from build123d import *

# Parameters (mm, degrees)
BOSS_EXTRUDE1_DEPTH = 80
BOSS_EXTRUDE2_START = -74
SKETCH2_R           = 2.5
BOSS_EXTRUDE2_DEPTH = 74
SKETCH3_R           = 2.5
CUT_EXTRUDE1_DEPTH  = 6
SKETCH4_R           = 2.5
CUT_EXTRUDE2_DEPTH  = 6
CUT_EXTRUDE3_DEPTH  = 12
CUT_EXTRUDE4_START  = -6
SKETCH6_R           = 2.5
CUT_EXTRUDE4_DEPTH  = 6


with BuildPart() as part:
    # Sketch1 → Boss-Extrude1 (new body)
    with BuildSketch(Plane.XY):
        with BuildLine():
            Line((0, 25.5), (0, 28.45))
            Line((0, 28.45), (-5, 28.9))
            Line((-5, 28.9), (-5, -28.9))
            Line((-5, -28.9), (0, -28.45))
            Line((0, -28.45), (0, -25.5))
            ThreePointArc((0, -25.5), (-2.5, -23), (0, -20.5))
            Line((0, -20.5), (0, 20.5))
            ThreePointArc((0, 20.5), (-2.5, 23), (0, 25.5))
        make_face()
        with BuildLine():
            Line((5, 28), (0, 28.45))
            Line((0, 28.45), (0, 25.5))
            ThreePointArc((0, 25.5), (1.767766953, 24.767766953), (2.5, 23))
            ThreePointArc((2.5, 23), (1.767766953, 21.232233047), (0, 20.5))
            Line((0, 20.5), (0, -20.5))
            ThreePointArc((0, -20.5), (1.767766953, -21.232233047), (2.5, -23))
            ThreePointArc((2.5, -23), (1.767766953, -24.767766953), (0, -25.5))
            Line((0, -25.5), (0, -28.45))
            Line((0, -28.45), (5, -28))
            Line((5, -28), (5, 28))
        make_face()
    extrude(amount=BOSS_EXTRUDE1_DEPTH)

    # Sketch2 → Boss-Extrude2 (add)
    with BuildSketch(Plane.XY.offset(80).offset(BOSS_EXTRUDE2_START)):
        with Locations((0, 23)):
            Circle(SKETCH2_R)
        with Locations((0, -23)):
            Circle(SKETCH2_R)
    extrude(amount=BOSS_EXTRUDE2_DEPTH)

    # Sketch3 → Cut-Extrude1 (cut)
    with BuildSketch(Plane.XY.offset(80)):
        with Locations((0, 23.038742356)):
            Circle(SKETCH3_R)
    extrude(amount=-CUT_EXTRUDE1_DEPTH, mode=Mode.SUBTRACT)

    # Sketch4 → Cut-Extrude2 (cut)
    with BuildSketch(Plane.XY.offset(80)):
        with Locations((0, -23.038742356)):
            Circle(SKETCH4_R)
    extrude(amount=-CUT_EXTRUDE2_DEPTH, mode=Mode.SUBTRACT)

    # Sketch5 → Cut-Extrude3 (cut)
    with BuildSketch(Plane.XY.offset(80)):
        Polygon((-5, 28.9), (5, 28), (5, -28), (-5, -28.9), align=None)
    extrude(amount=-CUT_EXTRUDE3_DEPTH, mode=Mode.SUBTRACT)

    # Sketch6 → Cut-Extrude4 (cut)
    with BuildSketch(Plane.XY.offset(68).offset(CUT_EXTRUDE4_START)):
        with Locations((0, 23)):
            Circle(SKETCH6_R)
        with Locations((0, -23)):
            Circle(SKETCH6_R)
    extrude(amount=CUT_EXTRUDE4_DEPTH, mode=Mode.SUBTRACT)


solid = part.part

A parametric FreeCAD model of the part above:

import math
import FreeCAD as App
import Part
import Sketcher

V = App.Vector

doc = App.newDocument("Part")
params = doc.addObject("Spreadsheet::Sheet", "Params")
for row, (alias, value) in enumerate([
    ("sketch1_radius", "2.5 mm"),
    ("sketch1_height", "56 mm"),
    ("sketch1_height2", "57.8 mm"),
    ("pad1_length", "80 mm"),
    ("sketch2_diameter", "5 mm"),
    ("pad2_length", "74 mm"),
    ("sketch3_diameter", "5 mm"),
    ("pocket1_length", "6 mm"),
    ("sketch4_diameter", "5 mm"),
    ("pocket2_length", "6 mm"),
    ("sketch5_height", "56 mm"),
    ("sketch5_height2", "57.8 mm"),
    ("pocket3_length", "12 mm"),
    ("sketch6_diameter", "5 mm"),
    ("pocket4_length", "6 mm"),
], start=1):
    params.set(f"A{row}", alias)
    params.set(f"B{row}", "=" + value)
    params.setAlias(f"B{row}", alias)

body = doc.addObject("PartDesign::Body", "Body")

# Sketch on XY plane
sketch1 = body.newObject("Sketcher::SketchObject", "Sketch")
sketch1.AttachmentSupport = (doc.getObject("XY_Plane"), [""])
sketch1.MapMode = "FlatFace"
sketch1.addGeometry(Part.LineSegment(V(-5, 28.9, 0), V(-5, -28.9, 0)), False)
sketch1.addGeometry(Part.LineSegment(V(-5, -28.9, 0), V(5, -28, 0)), False)
sketch1.addGeometry(Part.LineSegment(V(5, -28, 0), V(5, 28, 0)), False)
sketch1.addGeometry(Part.LineSegment(V(5, 28, 0), V(-5, 28.9, 0)), False)
sketch1.addGeometry(Part.ArcOfCircle(Part.Circle(V(0, -23, 0), V(0, 0, 1), 2.5), math.radians(90), math.radians(270)), False)
sketch1.addGeometry(Part.ArcOfCircle(Part.Circle(V(0, -23, 0), V(0, 0, 1), 2.5), math.radians(0), math.radians(90)), False)
sketch1.addGeometry(Part.ArcOfCircle(Part.Circle(V(0, -23, 0), V(0, 0, 1), 2.5), math.radians(-90), math.radians(0)), False)
sketch1.addGeometry(Part.ArcOfCircle(Part.Circle(V(0, 23, 0), V(0, 0, 1), 2.5), math.radians(90), math.radians(270)), False)
sketch1.addGeometry(Part.ArcOfCircle(Part.Circle(V(0, 23, 0), V(0, 0, 1), 2.5), math.radians(0), math.radians(90)), False)
sketch1.addGeometry(Part.ArcOfCircle(Part.Circle(V(0, 23, 0), V(0, 0, 1), 2.5), math.radians(-90), math.radians(0)), False)
sketch1.addConstraint(Sketcher.Constraint("Coincident", 0, 2, 1, 1))
sketch1.addConstraint(Sketcher.Constraint("Coincident", 1, 2, 2, 1))
sketch1.addConstraint(Sketcher.Constraint("Coincident", 2, 2, 3, 1))
sketch1.addConstraint(Sketcher.Constraint("Coincident", 3, 2, 0, 1))
sketch1.addConstraint(Sketcher.Constraint("Tangent", 4, 1, 5, 2))
sketch1.addConstraint(Sketcher.Constraint("Tangent", 5, 1, 6, 2))
sketch1.addConstraint(Sketcher.Constraint("Tangent", 6, 1, 4, 2))
sketch1.addConstraint(Sketcher.Constraint("Tangent", 7, 1, 8, 2))
sketch1.addConstraint(Sketcher.Constraint("Tangent", 8, 1, 9, 2))
sketch1.addConstraint(Sketcher.Constraint("Tangent", 9, 1, 7, 2))
sketch1.addConstraint(Sketcher.Constraint("Vertical", 0))
sketch1.addConstraint(Sketcher.Constraint("Vertical", 2))
sketch1.addConstraint(Sketcher.Constraint("Equal", 6, 7))
sketch1.addConstraint(Sketcher.Constraint("Symmetric", 4, 3, 7, 3, -1, 1))
sketch1.addConstraint(Sketcher.Constraint("Symmetric", 5, 1, 8, 1, -1))
sketch1.addConstraint(Sketcher.Constraint("PointOnObject", 4, 1, -2))
sketch1.addConstraint(Sketcher.Constraint("PointOnObject", 6, 1, -2))
sketch1.addConstraint(Sketcher.Constraint("PointOnObject", 7, 1, -2))
sketch1.addConstraint(Sketcher.Constraint("PointOnObject", 9, 1, -2))
sketch1.addConstraint(Sketcher.Constraint("Horizontal", 6, 3, 5, 1))
sketch1.addConstraint(Sketcher.Constraint("Equal", 1, 3))
sketch1.addConstraint(Sketcher.Constraint("Radius", 4, 2.5))
sketch1.addConstraint(Sketcher.Constraint("DistanceY", 2, 1, 2, 2, 56.0))
sketch1.addConstraint(Sketcher.Constraint("DistanceY", 0, 2, 0, 1, 57.8))
sketch1.addConstraint(Sketcher.Constraint("DistanceY", 4, 3, -1, 1, 23.0))
sketch1.addConstraint(Sketcher.Constraint("DistanceX", 0, 2, -1, 1, 5.0))
sketch1.addConstraint(Sketcher.Constraint("DistanceX", -1, 1, 1, 2, 5.0))
sketch1.addConstraint(Sketcher.Constraint("DistanceY", 1, 2, -1, 1, 28.0))
sketch1.setExpression("Constraints[21]", "Params.sketch1_radius")
sketch1.setExpression("Constraints[22]", "Params.sketch1_height")
sketch1.setExpression("Constraints[23]", "Params.sketch1_height2")
pad1 = body.newObject("PartDesign::Pad", "Pad")
pad1.Profile = sketch1
pad1.setExpression("Length", "Params.pad1_length")

# Sketch on XY plane
sketch2 = body.newObject("Sketcher::SketchObject", "Sketch001")
sketch2.AttachmentSupport = (doc.getObject("XY_Plane"), [""])
sketch2.MapMode = "FlatFace"
sketch2.AttachmentOffset = App.Placement(V(0, 0, 6), App.Rotation())
sketch2.addGeometry(Part.Circle(V(0, 23, 0), V(0, 0, 1), 2.5), False)
sketch2.addGeometry(Part.Circle(V(0, -23, 0), V(0, 0, 1), 2.5), False)
sketch2.addConstraint(Sketcher.Constraint("Equal", 0, 1))
sketch2.addConstraint(Sketcher.Constraint("Symmetric", 0, 3, 1, 3, -1, 1))
sketch2.addConstraint(Sketcher.Constraint("PointOnObject", 0, 3, -2))
sketch2.addConstraint(Sketcher.Constraint("Diameter", 0, 5.0))
sketch2.addConstraint(Sketcher.Constraint("DistanceY", -1, 1, 0, 3, 23.0))
sketch2.setExpression("Constraints[3]", "Params.sketch2_diameter")
pad2 = body.newObject("PartDesign::Pad", "Pad001")
pad2.Profile = sketch2
pad2.setExpression("Length", "Params.pad2_length")

# Sketch on XY plane
sketch3 = body.newObject("Sketcher::SketchObject", "Sketch002")
sketch3.AttachmentSupport = (doc.getObject("XY_Plane"), [""])
sketch3.MapMode = "FlatFace"
sketch3.AttachmentOffset = App.Placement(V(0, 0, 80), App.Rotation())
sketch3.addGeometry(Part.Circle(V(0, 23.038742, 0), V(0, 0, 1), 2.5), False)
sketch3.addConstraint(Sketcher.Constraint("PointOnObject", 0, 3, -2))
sketch3.addConstraint(Sketcher.Constraint("Diameter", 0, 5.0))
sketch3.addConstraint(Sketcher.Constraint("DistanceY", -1, 1, 0, 3, 23.038742))
sketch3.setExpression("Constraints[1]", "Params.sketch3_diameter")
pocket1 = body.newObject("PartDesign::Pocket", "Pocket")
pocket1.Profile = sketch3
pocket1.setExpression("Length", "Params.pocket1_length")

# Sketch on XY plane
sketch4 = body.newObject("Sketcher::SketchObject", "Sketch003")
sketch4.AttachmentSupport = (doc.getObject("XY_Plane"), [""])
sketch4.MapMode = "FlatFace"
sketch4.AttachmentOffset = App.Placement(V(0, 0, 80), App.Rotation())
sketch4.addGeometry(Part.Circle(V(0, -23.038742, 0), V(0, 0, 1), 2.5), False)
sketch4.addConstraint(Sketcher.Constraint("PointOnObject", 0, 3, -2))
sketch4.addConstraint(Sketcher.Constraint("Diameter", 0, 5.0))
sketch4.addConstraint(Sketcher.Constraint("DistanceY", 0, 3, -1, 1, 23.038742))
sketch4.setExpression("Constraints[1]", "Params.sketch4_diameter")
pocket2 = body.newObject("PartDesign::Pocket", "Pocket001")
pocket2.Profile = sketch4
pocket2.setExpression("Length", "Params.pocket2_length")

# Sketch on XY plane
sketch5 = body.newObject("Sketcher::SketchObject", "Sketch004")
sketch5.AttachmentSupport = (doc.getObject("XY_Plane"), [""])
sketch5.MapMode = "FlatFace"
sketch5.AttachmentOffset = App.Placement(V(0, 0, 80), App.Rotation())
sketch5.addGeometry(Part.LineSegment(V(5, 28, 0), V(-5, 28.9, 0)), False)
sketch5.addGeometry(Part.LineSegment(V(-5, 28.9, 0), V(-5, -28.9, 0)), False)
sketch5.addGeometry(Part.LineSegment(V(-5, -28.9, 0), V(5, -28, 0)), False)
sketch5.addGeometry(Part.LineSegment(V(5, -28, 0), V(5, 28, 0)), False)
sketch5.addConstraint(Sketcher.Constraint("Coincident", 0, 2, 1, 1))
sketch5.addConstraint(Sketcher.Constraint("Coincident", 1, 2, 2, 1))
sketch5.addConstraint(Sketcher.Constraint("Coincident", 2, 2, 3, 1))
sketch5.addConstraint(Sketcher.Constraint("Coincident", 3, 2, 0, 1))
sketch5.addConstraint(Sketcher.Constraint("Vertical", 1))
sketch5.addConstraint(Sketcher.Constraint("Vertical", 3))
sketch5.addConstraint(Sketcher.Constraint("Equal", 0, 2))
sketch5.addConstraint(Sketcher.Constraint("DistanceY", 3, 1, 3, 2, 56.0))
sketch5.addConstraint(Sketcher.Constraint("DistanceY", 1, 2, 1, 1, 57.8))
sketch5.addConstraint(Sketcher.Constraint("DistanceX", 0, 2, -1, 1, 5.0))
sketch5.addConstraint(Sketcher.Constraint("DistanceX", -1, 1, 2, 2, 5.0))
sketch5.addConstraint(Sketcher.Constraint("DistanceY", 2, 2, -1, 1, 28.0))
sketch5.setExpression("Constraints[7]", "Params.sketch5_height")
sketch5.setExpression("Constraints[8]", "Params.sketch5_height2")
pocket3 = body.newObject("PartDesign::Pocket", "Pocket002")
pocket3.Profile = sketch5
pocket3.setExpression("Length", "Params.pocket3_length")

# Sketch on XY plane
sketch6 = body.newObject("Sketcher::SketchObject", "Sketch005")
sketch6.AttachmentSupport = (doc.getObject("XY_Plane"), [""])
sketch6.MapMode = "FlatFace"
sketch6.AttachmentOffset = App.Placement(V(0, 0, 62), App.Rotation())
sketch6.addGeometry(Part.Circle(V(0, 23, 0), V(0, 0, 1), 2.5), False)
sketch6.addGeometry(Part.Circle(V(0, -23, 0), V(0, 0, 1), 2.5), False)
sketch6.addConstraint(Sketcher.Constraint("Equal", 0, 1))
sketch6.addConstraint(Sketcher.Constraint("Symmetric", 0, 3, 1, 3, -1, 1))
sketch6.addConstraint(Sketcher.Constraint("PointOnObject", 0, 3, -2))
sketch6.addConstraint(Sketcher.Constraint("Diameter", 0, 5.0))
sketch6.addConstraint(Sketcher.Constraint("DistanceY", -1, 1, 0, 3, 23.0))
sketch6.setExpression("Constraints[3]", "Params.sketch6_diameter")
pocket4 = body.newObject("PartDesign::Pocket", "Pocket003")
pocket4.Profile = sketch6
pocket4.setExpression("Length", "Params.pocket4_length")
pocket4.Reversed = True

doc.recompute()
